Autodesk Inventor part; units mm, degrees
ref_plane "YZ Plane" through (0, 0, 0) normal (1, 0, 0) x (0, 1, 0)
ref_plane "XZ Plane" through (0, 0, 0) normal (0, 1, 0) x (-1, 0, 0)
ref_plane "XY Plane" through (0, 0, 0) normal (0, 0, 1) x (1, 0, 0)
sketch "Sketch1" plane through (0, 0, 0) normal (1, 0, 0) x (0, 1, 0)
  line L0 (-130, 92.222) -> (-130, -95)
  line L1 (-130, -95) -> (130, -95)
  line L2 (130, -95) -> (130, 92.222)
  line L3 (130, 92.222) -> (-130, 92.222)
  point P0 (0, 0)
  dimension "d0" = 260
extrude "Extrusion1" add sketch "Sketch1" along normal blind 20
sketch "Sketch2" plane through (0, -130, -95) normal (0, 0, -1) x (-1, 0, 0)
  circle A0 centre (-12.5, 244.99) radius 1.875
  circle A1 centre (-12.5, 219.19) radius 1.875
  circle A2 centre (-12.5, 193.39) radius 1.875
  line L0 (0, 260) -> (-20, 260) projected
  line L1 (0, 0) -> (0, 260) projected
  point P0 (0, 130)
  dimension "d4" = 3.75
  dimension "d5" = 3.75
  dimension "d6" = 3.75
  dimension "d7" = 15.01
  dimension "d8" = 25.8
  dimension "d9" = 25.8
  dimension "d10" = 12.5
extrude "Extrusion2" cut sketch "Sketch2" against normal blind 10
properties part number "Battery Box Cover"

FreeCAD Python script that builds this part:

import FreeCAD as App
import Part
import Sketcher

V = App.Vector
Q = App.Units.Quantity


def add_polygon(sketch, points):
    """Adds a closed chain of lines whose ends are joined by coincident constraints."""
    first, n = sketch.GeometryCount, len(points)
    for a, b in zip(points, points[1:] + points[:1]):
        sketch.addGeometry(Part.LineSegment(App.Vector(*a, 0), App.Vector(*b, 0)), False)
    for i in range(n):
        sketch.addConstraint(Sketcher.Constraint("Coincident", first + i, 2, first + (i + 1) % n, 1))

doc = App.newDocument("Part")
body = doc.addObject("PartDesign::Body", "Body")

# Sketch on YZ plane
sketch1 = body.newObject("Sketcher::SketchObject", "Sketch")
sketch1.AttachmentSupport = (doc.getObject("YZ_Plane"), [""])
sketch1.MapMode = "FlatFace"
add_polygon(sketch1, [(130, 92), (-130, 92), (-130, -95), (130, -95)])  # lines 0-3
sketch1.addConstraint([
    Sketcher.Constraint("Horizontal", 0),
    Sketcher.Constraint("Vertical", 1),
    Sketcher.Constraint("Horizontal", 2),
    Sketcher.Constraint("Vertical", 3),
    Sketcher.Constraint("DistanceX", 0, 2, 0, 1, Q("260 mm")),
    Sketcher.Constraint("DistanceX", 0, 2, -1, 1, Q("130 mm")),
    Sketcher.Constraint("DistanceY", 1, 2, -1, 1, Q("95 mm")),
    Sketcher.Constraint("DistanceY", 1, 2, 1, 1, Q("187.222 mm")),
])
pad1 = body.newObject("PartDesign::Pad", "Pad")
pad1.Profile = sketch1
pad1.Length = 20

# Sketch on XY plane
sketch2 = body.newObject("Sketcher::SketchObject", "Sketch001")
sketch2.AttachmentSupport = (doc.getObject("XY_Plane"), [""])
sketch2.MapMode = "FlatFace"
sketch2.AttachmentOffset = App.Placement(V(0, 0, -95), App.Rotation())
sketch2.addGeometry([
    Part.Circle(V(12.5, 115, 0), V(0, 0, 1), 1.9),
    Part.Circle(V(12.5, 89.2, 0), V(0, 0, 1), 1.9),
    Part.Circle(V(12.5, 63.4, 0), V(0, 0, 1), 1.9),
], False)
sketch2.addConstraint([
    Sketcher.Constraint("Equal", 0, 1),
    Sketcher.Constraint("Equal", 1, 2),
    Sketcher.Constraint("Vertical", 0, 3, 1, 3),
    Sketcher.Constraint("Vertical", 1, 3, 2, 3),
    Sketcher.Constraint("Diameter", 0, Q("3.75 mm")),
    Sketcher.Constraint("DistanceX", -1, 1, 0, 3, Q("12.5 mm")),
    Sketcher.Constraint("DistanceY", 1, 3, 0, 3, Q("25.8 mm")),
    Sketcher.Constraint("DistanceY", 2, 3, 1, 3, Q("25.8 mm")),
    Sketcher.Constraint("DistanceY", -1, 1, 0, 3, Q("114.99 mm")),
])
pocket1 = body.newObject("PartDesign::Pocket", "Pocket")
pocket1.Profile = sketch2
pocket1.Length = 10
pocket1.Reversed = True

doc.recompute()
